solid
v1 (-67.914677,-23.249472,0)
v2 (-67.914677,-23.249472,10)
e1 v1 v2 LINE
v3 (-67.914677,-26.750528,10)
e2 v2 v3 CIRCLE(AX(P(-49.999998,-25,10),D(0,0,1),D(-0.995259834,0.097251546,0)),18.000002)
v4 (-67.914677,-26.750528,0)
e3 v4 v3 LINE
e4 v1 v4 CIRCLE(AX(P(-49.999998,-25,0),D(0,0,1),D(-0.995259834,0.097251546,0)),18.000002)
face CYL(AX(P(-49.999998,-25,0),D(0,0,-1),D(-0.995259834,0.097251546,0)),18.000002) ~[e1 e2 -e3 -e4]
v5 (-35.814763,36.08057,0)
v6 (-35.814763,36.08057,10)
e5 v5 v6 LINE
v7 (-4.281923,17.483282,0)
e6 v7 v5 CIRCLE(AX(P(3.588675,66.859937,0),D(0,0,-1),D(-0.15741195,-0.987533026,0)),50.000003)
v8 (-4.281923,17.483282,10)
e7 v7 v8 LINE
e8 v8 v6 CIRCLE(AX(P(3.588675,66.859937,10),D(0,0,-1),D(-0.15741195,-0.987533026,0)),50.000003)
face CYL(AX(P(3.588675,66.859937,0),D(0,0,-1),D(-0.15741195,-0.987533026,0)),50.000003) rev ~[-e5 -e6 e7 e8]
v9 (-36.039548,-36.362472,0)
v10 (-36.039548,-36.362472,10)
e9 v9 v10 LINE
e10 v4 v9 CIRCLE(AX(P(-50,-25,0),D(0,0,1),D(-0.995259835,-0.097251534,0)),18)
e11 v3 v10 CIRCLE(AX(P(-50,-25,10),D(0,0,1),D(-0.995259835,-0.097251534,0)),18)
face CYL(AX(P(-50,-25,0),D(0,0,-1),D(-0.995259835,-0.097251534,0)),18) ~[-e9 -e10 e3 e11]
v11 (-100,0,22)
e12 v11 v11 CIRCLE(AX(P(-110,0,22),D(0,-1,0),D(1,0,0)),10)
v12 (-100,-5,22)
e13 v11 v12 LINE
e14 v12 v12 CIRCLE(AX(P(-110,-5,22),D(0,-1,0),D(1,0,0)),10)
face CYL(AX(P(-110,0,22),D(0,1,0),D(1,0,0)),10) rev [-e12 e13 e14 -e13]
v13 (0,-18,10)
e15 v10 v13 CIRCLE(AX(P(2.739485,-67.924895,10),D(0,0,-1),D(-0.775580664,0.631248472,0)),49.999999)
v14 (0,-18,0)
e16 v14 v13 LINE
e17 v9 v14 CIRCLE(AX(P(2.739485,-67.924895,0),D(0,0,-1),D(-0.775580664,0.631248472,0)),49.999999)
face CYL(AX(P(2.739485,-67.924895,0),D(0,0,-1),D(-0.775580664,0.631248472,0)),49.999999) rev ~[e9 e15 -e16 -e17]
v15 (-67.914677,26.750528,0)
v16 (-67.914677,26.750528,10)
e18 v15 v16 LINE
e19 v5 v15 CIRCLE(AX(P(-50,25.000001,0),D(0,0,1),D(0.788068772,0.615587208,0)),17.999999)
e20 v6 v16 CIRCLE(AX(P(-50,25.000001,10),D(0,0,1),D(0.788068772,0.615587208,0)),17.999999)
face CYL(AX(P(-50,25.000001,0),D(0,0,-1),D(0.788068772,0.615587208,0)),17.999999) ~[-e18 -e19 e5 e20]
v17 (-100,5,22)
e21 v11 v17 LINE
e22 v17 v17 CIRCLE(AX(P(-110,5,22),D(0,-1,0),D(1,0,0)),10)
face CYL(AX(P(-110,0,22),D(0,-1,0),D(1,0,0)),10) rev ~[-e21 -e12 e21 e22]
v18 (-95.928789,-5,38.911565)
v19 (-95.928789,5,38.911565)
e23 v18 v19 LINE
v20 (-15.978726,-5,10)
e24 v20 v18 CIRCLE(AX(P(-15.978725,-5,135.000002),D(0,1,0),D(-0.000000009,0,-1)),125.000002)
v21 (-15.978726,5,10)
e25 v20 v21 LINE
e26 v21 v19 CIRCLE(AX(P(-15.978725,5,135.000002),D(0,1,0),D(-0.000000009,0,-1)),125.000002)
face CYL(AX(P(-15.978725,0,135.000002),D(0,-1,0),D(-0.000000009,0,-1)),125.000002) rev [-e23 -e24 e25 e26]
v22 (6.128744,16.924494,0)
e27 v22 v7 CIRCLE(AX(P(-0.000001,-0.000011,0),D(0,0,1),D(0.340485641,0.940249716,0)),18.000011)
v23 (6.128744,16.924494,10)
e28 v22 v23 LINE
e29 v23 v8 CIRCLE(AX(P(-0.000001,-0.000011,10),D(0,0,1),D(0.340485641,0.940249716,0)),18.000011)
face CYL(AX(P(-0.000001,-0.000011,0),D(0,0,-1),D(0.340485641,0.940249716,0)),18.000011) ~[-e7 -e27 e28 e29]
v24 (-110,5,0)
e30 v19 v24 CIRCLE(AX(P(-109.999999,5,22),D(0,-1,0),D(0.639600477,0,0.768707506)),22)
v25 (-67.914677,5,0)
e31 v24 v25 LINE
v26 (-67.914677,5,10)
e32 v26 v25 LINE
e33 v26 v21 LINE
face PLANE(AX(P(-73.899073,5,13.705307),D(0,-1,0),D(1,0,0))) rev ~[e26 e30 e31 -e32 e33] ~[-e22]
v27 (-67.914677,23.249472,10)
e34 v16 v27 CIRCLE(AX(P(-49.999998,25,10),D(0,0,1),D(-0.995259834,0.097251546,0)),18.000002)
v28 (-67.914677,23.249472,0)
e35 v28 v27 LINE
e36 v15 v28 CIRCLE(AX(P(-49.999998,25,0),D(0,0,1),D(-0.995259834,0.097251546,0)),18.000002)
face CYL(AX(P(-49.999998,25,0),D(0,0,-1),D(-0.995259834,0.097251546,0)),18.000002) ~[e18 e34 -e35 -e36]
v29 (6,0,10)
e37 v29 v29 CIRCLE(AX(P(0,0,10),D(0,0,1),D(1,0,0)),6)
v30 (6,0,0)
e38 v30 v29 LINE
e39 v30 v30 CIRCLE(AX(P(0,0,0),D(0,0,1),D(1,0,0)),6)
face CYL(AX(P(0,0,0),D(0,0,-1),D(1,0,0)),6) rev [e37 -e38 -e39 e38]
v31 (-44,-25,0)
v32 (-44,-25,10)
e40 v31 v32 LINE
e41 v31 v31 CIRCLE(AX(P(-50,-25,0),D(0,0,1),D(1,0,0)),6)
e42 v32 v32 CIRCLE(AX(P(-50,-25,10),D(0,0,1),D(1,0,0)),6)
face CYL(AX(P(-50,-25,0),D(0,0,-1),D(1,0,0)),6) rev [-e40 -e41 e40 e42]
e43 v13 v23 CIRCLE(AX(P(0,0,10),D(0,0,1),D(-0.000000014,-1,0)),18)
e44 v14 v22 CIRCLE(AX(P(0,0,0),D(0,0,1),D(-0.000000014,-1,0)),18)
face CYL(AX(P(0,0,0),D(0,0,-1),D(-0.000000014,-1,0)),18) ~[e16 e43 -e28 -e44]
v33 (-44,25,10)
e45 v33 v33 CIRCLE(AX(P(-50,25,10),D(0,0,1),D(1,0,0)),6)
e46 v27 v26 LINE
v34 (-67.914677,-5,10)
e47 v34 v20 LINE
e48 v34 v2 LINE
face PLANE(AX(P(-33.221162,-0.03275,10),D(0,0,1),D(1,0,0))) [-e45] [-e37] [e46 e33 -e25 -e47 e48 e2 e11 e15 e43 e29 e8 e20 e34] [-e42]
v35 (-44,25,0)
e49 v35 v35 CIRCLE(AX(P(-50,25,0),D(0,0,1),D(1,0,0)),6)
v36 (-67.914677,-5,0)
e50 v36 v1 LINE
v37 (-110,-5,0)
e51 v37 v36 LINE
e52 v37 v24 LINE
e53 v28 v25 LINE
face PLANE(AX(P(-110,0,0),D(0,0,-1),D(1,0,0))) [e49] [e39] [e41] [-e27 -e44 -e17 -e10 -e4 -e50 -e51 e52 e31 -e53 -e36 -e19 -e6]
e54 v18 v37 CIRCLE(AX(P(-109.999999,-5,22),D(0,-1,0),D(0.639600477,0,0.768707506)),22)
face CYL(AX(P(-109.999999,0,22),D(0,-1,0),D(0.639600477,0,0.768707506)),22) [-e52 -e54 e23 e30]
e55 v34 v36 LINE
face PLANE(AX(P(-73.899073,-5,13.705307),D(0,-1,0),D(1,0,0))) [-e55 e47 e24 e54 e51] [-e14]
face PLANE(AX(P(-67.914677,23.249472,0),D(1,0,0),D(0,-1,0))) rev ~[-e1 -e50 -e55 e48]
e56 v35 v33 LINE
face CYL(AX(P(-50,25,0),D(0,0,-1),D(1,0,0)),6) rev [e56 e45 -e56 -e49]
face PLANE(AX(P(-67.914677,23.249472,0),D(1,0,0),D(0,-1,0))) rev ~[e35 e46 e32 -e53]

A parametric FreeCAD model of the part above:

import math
import FreeCAD as App
import Part
import Sketcher
from FreeCAD import Vector

doc = App.newDocument("Part")
body = doc.addObject("PartDesign::Body", "Body")

# Sketch on XY plane
sketch1 = body.newObject("Sketcher::SketchObject", "Sketch")
sketch1.AttachmentSupport = (doc.getObject("XY_Plane"), [""])
sketch1.MapMode = "FlatFace"
sketch1.addGeometry([
    Part.ArcOfCircle(Part.Circle(Vector(3.6, 66.9, 0), Vector(0, 0, 1), 50), math.radians(-142), math.radians(-99)),  # 0
    Part.ArcOfCircle(Part.Circle(Vector(-50, 25, 0), Vector(0, 0, 1), 18), math.radians(38), math.radians(174)),  # 1
    Part.ArcOfCircle(Part.Circle(Vector(-50, 25, 0), Vector(0, 0, 1), 18), math.radians(174.42), math.radians(185.58)),  # 2
    Part.LineSegment(Vector(-67.9, 23.2, 0), Vector(-67.9, -23.2, 0)),  # 3
    Part.ArcOfCircle(Part.Circle(Vector(-50, -25, 0), Vector(0, 0, 1), 18), math.radians(174.42), math.radians(185.58)),  # 4
    Part.ArcOfCircle(Part.Circle(Vector(-50, -25, 0), Vector(0, 0, 1), 18), math.radians(-174), math.radians(-39)),  # 5
    Part.ArcOfCircle(Part.Circle(Vector(2.7, -67.9, 0), Vector(0, 0, 1), 50), math.radians(93), math.radians(141)),  # 6
    Part.ArcOfCircle(Part.Circle(Vector(0, 0, 0), Vector(0, 0, 1), 18), math.radians(-90), math.radians(70)),  # 7
    Part.ArcOfCircle(Part.Circle(Vector(0, 0, 0), Vector(0, 0, 1), 18), math.radians(70), math.radians(104)),  # 8
    Part.Circle(Vector(-50, -25, 0), Vector(0, 0, 1), 6),  # 9
    Part.Circle(Vector(-50, 25, 0), Vector(0, 0, 1), 6),  # 10
    Part.Circle(Vector(0, 0, 0), Vector(0, 0, 1), 6),  # 11
], False)
sketch1.addConstraint([
    Sketcher.Constraint("Tangent", 0, 1, 1, 1),
    Sketcher.Constraint("Tangent", 1, 2, 2, 1),
    Sketcher.Constraint("Coincident", 2, 2, 3, 1),
    Sketcher.Constraint("Coincident", 3, 2, 4, 1),
    Sketcher.Constraint("Tangent", 4, 2, 5, 1),
    Sketcher.Constraint("Tangent", 5, 2, 6, 2),
    Sketcher.Constraint("Coincident", 6, 1, 7, 1),
    Sketcher.Constraint("Tangent", 7, 2, 8, 1),
    Sketcher.Constraint("Coincident", 8, 2, 0, 2),
    Sketcher.Constraint("Vertical", 3),
    Sketcher.Constraint("Coincident", 7, 3, -1, 1),
    Sketcher.Constraint("Coincident", 11, 3, -1, 1),
    Sketcher.Constraint("Coincident", 9, 3, 4, 3),
    Sketcher.Constraint("Coincident", 10, 3, 1, 3),
    Sketcher.Constraint("Equal", 2, 4),
    Sketcher.Constraint("Equal", 1, 5),
    Sketcher.Constraint("Equal", 5, 7),
    Sketcher.Constraint("Equal", 9, 10),
    Sketcher.Constraint("Equal", 10, 11),
    Sketcher.Constraint("Symmetric", 1, 3, 4, 3, -1),
    Sketcher.Constraint("Symmetric", 1, 2, 4, 2, -1),
    Sketcher.Constraint("PointOnObject", 8, 3, -2),
    Sketcher.Constraint("PointOnObject", 6, 1, -2),
    Sketcher.Constraint("Vertical", 1, 2, 2, 2),
    Sketcher.Constraint("Diameter", 9, 12.0),
    Sketcher.Constraint("Radius", 1, 17.999999),
    Sketcher.Constraint("Radius", 6, 49.999999),
    Sketcher.Constraint("DistanceX", 1, 3, -1, 1, 50.0),
    Sketcher.Constraint("DistanceY", -1, 1, 1, 3, 25.000001),
    Sketcher.Constraint("Radius", 0, 50.000003),
    Sketcher.Constraint("DistanceY", 5, 2, 3, 2, 13.113),
    Sketcher.Constraint("DistanceY", 2, 2, 0, 1, 12.831098),
    Sketcher.Constraint("DistanceY", 7, 2, 8, 2, 0.558788),
])
pad1 = body.newObject("PartDesign::Pad", "Pad")
pad1.Profile = sketch1
pad1.Length = 10

# Sketch on XZ plane
sketch2 = body.newObject("Sketcher::SketchObject", "Sketch001")
sketch2.AttachmentSupport = (doc.getObject("XZ_Plane"), [""])
sketch2.MapMode = "FlatFace"
sketch2.addGeometry([
    Part.LineSegment(Vector(-110, 0, 0), Vector(-10, 0, 0)),  # 0
    Part.LineSegment(Vector(-10, 0, 0), Vector(-16, 10, 0)),  # 1
    Part.ArcOfCircle(Part.Circle(Vector(-16, 135, 0), Vector(0, 0, 1), 125), math.radians(-130), math.radians(-90)),  # 2
    Part.ArcOfCircle(Part.Circle(Vector(-110, 22, 0), Vector(0, 0, 1), 22), math.radians(50), math.radians(270)),  # 3
    Part.Circle(Vector(-110, 22, 0), Vector(0, 0, 1), 10),  # 4
], False)
sketch2.addConstraint([
    Sketcher.Constraint("Coincident", 0, 2, 1, 1),
    Sketcher.Constraint("Coincident", 1, 2, 2, 2),
    Sketcher.Constraint("Tangent", 2, 1, 3, 1),
    Sketcher.Constraint("Tangent", 3, 2, 0, 1),
    Sketcher.Constraint("Horizontal", 0),
    Sketcher.Constraint("Coincident", 4, 3, 3, 3),
    Sketcher.Constraint("PointOnObject", 0, 2, -1),
    Sketcher.Constraint("Vertical", 2, 3, 1, 2),
    Sketcher.Constraint("Diameter", 4, 20.0),
    Sketcher.Constraint("Radius", 2, 125.000002),
    Sketcher.Constraint("Radius", 3, 22.0),
    Sketcher.Constraint("DistanceY", -1, 1, 2, 3, 135.000002),
    Sketcher.Constraint("DistanceX", 3, 3, -1, 1, 109.999999),
    Sketcher.Constraint("DistanceX", 0, 1, 0, 2, 100.069359),
])
pad2 = body.newObject("PartDesign::Pad", "Pad001")
pad2.Profile = sketch2
pad2.Type = "TwoLengths"
pad2.Length = 5
pad2.Length2 = 5

doc.recompute()
